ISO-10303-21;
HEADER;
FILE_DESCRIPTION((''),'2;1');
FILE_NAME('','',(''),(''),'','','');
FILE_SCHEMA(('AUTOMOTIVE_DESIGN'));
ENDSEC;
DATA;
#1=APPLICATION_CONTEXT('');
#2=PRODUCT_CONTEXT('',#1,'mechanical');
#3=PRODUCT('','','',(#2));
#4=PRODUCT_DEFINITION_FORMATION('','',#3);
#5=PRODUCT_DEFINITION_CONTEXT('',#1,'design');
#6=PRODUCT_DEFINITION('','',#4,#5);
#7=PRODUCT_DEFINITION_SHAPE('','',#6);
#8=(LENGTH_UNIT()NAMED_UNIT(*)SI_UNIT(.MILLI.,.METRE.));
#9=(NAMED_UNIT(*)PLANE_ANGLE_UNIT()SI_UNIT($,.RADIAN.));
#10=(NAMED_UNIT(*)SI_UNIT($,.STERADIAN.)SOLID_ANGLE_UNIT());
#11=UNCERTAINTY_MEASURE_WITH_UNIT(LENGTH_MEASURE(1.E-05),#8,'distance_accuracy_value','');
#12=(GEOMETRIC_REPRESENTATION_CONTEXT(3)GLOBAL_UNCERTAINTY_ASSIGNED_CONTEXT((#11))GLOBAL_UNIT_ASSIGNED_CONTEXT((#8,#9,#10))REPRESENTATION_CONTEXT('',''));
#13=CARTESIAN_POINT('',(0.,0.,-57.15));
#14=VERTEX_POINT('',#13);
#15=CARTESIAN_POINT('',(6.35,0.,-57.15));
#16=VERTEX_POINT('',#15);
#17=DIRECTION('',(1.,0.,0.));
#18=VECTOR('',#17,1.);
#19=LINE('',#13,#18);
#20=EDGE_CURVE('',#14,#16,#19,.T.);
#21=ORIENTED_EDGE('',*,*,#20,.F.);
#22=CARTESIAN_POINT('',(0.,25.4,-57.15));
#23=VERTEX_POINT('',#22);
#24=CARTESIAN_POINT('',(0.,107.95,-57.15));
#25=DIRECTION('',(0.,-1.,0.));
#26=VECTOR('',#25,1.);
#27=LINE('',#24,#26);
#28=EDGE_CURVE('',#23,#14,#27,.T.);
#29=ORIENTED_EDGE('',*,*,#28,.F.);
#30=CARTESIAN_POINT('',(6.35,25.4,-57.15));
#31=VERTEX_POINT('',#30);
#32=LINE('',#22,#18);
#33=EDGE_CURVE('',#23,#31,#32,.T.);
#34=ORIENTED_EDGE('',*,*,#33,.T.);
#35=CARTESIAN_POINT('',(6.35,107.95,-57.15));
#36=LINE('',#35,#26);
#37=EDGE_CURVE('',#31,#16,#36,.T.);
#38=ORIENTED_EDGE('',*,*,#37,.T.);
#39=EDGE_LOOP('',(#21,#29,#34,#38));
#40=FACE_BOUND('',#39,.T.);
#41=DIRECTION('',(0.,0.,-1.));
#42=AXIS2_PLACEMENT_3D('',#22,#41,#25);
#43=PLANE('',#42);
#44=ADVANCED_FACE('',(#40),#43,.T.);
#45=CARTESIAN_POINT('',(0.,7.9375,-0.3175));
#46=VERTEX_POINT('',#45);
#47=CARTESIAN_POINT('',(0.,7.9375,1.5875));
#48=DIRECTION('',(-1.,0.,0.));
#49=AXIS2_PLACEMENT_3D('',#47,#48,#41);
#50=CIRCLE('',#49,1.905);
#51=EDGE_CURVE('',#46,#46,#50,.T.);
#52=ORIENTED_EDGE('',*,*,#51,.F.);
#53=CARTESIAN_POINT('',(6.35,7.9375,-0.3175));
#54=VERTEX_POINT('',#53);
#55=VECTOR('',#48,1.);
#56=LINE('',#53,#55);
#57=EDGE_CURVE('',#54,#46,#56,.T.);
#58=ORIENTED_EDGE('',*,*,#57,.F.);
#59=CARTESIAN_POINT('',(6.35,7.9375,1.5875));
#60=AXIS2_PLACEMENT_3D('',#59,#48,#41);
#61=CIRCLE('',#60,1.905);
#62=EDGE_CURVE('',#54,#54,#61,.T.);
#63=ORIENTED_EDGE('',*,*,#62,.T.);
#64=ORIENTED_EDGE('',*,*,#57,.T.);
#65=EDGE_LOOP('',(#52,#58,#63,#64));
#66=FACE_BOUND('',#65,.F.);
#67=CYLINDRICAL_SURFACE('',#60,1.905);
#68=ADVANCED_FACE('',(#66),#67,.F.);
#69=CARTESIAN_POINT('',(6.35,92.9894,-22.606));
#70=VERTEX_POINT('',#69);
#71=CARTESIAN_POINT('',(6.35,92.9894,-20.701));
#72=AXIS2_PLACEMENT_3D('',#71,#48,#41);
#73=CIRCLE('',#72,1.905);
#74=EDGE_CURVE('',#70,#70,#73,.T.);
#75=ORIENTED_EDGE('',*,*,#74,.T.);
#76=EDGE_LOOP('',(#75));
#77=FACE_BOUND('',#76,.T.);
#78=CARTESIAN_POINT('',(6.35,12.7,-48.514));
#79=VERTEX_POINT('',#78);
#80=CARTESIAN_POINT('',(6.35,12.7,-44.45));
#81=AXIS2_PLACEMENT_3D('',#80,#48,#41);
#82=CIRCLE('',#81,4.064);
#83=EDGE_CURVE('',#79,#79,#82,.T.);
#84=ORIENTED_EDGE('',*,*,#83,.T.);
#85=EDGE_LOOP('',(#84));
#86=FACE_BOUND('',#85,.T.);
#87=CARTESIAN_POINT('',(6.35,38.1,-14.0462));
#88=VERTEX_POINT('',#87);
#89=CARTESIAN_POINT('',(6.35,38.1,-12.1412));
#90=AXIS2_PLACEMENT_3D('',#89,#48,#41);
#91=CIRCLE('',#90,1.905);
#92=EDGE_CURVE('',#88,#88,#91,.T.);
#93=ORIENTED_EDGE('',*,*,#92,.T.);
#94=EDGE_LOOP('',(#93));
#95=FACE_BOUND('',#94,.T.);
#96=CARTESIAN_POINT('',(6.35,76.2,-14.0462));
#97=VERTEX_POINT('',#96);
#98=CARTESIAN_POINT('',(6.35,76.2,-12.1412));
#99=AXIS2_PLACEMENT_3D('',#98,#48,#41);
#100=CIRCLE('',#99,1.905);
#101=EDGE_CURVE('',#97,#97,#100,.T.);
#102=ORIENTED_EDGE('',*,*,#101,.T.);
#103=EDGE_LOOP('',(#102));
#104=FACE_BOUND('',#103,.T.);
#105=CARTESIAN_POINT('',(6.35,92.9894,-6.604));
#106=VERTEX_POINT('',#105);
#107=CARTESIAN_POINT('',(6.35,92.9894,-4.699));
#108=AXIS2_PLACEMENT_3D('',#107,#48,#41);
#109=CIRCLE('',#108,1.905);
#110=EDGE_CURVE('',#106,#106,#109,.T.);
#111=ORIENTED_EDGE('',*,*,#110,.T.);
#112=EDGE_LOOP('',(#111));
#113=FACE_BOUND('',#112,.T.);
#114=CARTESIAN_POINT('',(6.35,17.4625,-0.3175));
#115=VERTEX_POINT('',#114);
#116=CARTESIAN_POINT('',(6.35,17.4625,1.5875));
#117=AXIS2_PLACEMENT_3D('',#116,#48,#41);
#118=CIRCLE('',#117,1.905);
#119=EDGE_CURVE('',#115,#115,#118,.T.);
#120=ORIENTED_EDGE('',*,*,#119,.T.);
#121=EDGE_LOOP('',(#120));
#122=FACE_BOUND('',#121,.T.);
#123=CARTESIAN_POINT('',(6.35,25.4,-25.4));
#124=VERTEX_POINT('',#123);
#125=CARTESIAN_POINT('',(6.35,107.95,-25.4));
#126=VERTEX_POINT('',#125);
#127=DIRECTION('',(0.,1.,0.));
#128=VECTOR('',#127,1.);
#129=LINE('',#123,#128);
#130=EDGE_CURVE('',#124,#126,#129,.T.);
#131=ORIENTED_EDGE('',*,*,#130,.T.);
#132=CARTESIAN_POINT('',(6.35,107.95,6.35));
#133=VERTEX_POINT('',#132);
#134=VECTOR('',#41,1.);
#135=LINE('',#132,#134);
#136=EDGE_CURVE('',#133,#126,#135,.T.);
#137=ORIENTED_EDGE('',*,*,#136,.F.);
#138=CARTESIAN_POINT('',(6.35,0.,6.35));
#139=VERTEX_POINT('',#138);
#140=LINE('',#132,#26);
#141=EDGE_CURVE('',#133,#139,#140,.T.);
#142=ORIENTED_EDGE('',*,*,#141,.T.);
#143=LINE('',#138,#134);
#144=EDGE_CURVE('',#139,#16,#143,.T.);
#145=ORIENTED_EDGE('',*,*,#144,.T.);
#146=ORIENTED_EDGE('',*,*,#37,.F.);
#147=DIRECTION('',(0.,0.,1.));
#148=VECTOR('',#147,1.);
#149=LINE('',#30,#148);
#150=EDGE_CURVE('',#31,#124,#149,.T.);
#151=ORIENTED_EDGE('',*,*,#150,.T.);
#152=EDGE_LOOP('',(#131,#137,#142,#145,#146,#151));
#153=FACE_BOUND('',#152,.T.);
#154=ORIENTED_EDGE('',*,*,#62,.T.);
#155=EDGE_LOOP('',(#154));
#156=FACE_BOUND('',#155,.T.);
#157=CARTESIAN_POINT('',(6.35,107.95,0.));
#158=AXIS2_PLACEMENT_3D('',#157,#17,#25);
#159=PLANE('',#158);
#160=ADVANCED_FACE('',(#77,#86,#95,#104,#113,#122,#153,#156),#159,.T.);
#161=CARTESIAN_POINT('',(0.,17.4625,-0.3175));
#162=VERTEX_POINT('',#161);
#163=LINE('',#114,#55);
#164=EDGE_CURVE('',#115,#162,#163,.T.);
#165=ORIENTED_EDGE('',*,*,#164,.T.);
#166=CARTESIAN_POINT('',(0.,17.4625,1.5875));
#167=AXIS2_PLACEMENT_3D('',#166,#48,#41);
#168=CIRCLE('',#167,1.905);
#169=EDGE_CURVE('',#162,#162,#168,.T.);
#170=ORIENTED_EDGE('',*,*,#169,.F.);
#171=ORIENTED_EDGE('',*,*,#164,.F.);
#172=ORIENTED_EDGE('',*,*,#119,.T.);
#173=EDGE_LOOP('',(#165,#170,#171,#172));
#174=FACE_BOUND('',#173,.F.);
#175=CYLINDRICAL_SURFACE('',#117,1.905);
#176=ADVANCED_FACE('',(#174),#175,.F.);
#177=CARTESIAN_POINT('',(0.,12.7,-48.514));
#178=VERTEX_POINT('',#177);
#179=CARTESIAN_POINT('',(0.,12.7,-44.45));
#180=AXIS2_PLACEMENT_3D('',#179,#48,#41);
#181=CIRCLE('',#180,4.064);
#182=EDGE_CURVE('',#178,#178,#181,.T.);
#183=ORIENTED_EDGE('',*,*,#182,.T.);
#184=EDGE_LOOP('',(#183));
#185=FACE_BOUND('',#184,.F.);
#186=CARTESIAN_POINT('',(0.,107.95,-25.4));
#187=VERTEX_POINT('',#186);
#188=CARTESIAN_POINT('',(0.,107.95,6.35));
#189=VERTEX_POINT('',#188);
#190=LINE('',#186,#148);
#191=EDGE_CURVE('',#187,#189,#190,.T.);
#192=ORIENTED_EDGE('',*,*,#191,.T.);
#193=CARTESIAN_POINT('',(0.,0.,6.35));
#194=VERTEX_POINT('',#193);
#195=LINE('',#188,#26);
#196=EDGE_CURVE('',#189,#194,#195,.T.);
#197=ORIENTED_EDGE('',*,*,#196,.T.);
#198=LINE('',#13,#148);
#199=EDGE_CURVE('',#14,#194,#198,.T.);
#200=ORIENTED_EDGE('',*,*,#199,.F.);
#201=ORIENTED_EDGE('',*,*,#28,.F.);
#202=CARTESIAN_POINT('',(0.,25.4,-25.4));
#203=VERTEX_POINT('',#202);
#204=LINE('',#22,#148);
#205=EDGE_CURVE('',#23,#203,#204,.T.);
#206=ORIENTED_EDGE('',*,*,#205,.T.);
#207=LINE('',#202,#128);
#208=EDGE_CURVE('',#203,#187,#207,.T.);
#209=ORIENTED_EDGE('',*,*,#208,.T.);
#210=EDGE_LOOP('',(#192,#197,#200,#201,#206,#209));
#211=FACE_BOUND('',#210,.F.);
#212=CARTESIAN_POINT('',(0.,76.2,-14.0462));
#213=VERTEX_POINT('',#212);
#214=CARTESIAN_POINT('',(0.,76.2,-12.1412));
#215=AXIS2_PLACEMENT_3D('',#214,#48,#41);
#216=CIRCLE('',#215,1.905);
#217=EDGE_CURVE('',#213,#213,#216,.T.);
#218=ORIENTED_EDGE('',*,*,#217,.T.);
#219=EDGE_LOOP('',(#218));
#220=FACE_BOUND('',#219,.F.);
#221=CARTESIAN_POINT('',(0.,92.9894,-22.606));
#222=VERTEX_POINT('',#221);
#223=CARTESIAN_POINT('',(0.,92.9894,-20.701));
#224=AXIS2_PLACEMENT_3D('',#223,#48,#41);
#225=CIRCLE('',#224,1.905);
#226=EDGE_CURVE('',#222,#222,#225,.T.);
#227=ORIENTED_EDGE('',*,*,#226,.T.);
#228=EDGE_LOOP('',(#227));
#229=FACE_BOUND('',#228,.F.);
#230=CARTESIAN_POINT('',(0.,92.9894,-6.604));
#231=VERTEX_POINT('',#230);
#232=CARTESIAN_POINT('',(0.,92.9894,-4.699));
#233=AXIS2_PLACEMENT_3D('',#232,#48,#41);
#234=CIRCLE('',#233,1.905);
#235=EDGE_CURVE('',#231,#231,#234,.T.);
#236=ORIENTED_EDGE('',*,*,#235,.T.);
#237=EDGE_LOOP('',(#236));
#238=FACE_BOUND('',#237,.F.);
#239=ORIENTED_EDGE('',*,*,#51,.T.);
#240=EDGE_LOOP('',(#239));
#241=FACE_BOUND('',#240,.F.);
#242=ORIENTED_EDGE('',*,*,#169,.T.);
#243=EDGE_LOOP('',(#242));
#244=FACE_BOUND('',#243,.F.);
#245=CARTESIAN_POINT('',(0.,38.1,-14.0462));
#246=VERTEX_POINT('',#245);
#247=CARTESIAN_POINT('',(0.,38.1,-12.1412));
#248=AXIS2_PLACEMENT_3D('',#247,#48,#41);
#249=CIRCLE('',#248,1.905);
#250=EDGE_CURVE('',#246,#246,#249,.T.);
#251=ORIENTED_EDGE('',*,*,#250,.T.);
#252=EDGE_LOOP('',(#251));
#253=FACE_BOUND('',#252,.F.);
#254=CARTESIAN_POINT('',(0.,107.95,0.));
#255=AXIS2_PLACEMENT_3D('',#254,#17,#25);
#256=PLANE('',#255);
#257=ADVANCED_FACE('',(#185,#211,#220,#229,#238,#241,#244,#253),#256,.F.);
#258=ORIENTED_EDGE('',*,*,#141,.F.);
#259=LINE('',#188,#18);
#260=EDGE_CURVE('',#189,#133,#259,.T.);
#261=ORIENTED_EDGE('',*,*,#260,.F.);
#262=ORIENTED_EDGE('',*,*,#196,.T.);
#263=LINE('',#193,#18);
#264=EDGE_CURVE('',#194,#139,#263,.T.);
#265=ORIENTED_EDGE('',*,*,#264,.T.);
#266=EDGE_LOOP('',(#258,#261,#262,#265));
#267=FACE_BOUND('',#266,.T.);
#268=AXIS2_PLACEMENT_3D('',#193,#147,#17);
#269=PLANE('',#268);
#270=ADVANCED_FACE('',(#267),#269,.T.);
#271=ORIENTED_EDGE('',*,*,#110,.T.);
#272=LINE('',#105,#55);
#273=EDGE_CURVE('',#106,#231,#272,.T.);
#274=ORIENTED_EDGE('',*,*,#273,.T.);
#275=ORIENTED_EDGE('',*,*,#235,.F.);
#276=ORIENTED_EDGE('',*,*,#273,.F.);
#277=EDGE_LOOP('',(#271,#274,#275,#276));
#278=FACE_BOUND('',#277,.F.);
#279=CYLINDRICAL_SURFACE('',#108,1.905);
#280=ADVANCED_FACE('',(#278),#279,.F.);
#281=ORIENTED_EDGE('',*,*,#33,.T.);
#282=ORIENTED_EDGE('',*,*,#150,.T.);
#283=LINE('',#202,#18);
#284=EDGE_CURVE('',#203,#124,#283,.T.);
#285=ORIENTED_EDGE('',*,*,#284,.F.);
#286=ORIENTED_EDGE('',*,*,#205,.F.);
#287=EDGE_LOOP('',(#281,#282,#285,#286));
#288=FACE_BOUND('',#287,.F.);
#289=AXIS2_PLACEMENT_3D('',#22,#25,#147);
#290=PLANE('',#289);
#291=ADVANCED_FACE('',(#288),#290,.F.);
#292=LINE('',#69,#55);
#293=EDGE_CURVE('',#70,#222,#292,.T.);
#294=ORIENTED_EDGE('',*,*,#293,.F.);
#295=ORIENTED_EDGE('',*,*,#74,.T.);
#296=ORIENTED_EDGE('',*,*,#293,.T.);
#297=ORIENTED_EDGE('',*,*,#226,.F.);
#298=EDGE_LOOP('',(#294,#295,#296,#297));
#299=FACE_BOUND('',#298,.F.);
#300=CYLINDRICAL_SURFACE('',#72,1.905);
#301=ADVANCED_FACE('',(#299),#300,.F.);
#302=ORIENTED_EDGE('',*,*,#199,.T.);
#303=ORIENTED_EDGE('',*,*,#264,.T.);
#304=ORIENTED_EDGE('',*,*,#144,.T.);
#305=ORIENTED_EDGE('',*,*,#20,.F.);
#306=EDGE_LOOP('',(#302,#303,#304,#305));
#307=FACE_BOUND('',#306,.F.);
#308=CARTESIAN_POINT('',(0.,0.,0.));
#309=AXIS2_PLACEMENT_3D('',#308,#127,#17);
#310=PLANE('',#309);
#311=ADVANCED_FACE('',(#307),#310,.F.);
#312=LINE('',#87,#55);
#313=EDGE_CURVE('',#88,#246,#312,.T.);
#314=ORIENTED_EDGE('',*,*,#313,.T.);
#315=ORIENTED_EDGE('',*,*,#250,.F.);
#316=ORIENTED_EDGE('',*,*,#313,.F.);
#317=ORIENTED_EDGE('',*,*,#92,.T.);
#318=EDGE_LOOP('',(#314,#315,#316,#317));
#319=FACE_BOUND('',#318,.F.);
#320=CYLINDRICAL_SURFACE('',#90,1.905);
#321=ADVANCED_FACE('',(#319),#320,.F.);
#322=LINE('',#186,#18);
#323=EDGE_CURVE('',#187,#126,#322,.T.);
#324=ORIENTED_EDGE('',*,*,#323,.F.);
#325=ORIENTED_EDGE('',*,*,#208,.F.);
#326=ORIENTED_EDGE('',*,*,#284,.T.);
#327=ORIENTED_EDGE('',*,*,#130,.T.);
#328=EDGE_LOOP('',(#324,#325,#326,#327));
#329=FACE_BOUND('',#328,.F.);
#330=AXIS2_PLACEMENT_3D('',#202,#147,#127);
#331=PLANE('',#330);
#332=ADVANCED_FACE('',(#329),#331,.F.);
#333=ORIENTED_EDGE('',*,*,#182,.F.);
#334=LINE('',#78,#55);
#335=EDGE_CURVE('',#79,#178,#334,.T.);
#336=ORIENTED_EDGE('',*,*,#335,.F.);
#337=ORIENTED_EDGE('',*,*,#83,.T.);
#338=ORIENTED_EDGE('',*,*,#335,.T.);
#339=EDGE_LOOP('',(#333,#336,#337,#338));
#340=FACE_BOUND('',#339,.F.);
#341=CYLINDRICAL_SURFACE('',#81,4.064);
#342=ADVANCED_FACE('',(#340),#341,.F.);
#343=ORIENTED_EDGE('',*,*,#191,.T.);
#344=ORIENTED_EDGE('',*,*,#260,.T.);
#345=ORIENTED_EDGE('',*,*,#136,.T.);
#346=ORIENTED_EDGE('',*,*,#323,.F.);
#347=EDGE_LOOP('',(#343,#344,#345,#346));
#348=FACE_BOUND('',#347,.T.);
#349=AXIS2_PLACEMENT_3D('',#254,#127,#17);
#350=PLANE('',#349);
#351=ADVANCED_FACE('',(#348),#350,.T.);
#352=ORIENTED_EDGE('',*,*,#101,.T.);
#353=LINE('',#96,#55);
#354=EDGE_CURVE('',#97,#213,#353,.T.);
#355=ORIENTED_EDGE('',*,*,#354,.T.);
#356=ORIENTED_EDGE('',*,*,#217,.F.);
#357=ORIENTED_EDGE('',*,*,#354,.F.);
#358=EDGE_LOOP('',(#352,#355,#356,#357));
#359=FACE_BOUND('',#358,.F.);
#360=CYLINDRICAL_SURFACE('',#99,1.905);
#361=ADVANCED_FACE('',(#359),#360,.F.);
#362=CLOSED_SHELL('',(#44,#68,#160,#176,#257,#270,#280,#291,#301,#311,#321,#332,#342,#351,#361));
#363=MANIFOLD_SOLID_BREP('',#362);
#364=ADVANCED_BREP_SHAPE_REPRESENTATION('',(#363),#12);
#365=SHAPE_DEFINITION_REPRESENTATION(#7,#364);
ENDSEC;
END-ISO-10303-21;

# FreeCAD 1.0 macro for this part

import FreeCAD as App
import Part
import Sketcher
Q = App.Units.Quantity


def add_polygon(sketch, points):
    """Adds a closed chain of lines whose ends are joined by coincident constraints."""
    first, n = sketch.GeometryCount, len(points)
    for a, b in zip(points, points[1:] + points[:1]):
        sketch.addGeometry(Part.LineSegment(App.Vector(*a, 0), App.Vector(*b, 0)), False)
    for i in range(n):
        sketch.addConstraint(Sketcher.Constraint("Coincident", first + i, 2, first + (i + 1) % n, 1))

doc = App.newDocument("Part")
body = doc.addObject("PartDesign::Body", "Body")

# Sketch on YZ plane
sketch1 = body.newObject("Sketcher::SketchObject", "Sketch")
sketch1.AttachmentSupport = (doc.getObject("YZ_Plane"), [""])
sketch1.MapMode = "FlatFace"
add_polygon(sketch1, [(108, 0), (0, 0), (0, -57), (25, -57), (25, -25), (108, -25)])  # lines 0-5
sketch1.addConstraint([
    Sketcher.Constraint("Horizontal", 0),
    Sketcher.Constraint("Vertical", 1),
    Sketcher.Constraint("Horizontal", 2),
    Sketcher.Constraint("Vertical", 3),
    Sketcher.Constraint("Horizontal", 4),
    Sketcher.Constraint("Vertical", 5),
    Sketcher.Constraint("Coincident", 0, 2, -1, 1),
    Sketcher.Constraint("Equal", 2, 5),
    Sketcher.Constraint("DistanceX", 0, 2, 0, 1, Q("4.25 in")),
    Sketcher.Constraint("DistanceX", 4, 1, 4, 2, Q("3.25 in")),
    Sketcher.Constraint("DistanceY", 1, 2, 1, 1, Q("2.25 in")),
])
pad1 = body.newObject("PartDesign::Pad", "Pad")
pad1.Profile = sketch1
pad1.Length = Q("0.25 in")

# Sketch on YZ plane
sketch2 = body.newObject("Sketcher::SketchObject", "Sketch001")
sketch2.AttachmentSupport = (doc.getObject("YZ_Plane"), [""])
sketch2.MapMode = "FlatFace"
sketch2.AttachmentOffset = App.Placement(App.Vector(0, 0, 0.25 * 25.4), App.Rotation())
sketch2.addGeometry([
    Part.Circle(App.Vector(93, -4.7, 0), App.Vector(0, 0, 1), 1.9),
    Part.Circle(App.Vector(93, -20.7, 0), App.Vector(0, 0, 1), 1.9),
], False)
sketch2.addConstraint([
    Sketcher.Constraint("Equal", 0, 1),
    Sketcher.Constraint("Vertical", 0, 3, 1, 3),
    Sketcher.Constraint("Diameter", 0, Q("0.15 in")),
    Sketcher.Constraint("DistanceY", 1, 3, 0, 3, Q("0.63 in")),
    Sketcher.Constraint("DistanceX", -1, 1, 0, 3, Q("3.661 in")),
    Sketcher.Constraint("DistanceY", 0, 3, -1, 1, Q("0.185 in")),
])
doc.recompute()
hole = body.newObject("PartDesign::Hole", "Hole")
hole.Profile = sketch2
hole.ThreadType = "None"
hole.Diameter = Q("0.15 in")
hole.DepthType = "ThroughAll"

# Sketch on YZ plane
sketch3 = body.newObject("Sketcher::SketchObject", "Sketch002")
sketch3.AttachmentSupport = (doc.getObject("YZ_Plane"), [""])
sketch3.MapMode = "FlatFace"
sketch3.AttachmentOffset = App.Placement(App.Vector(0, 0, 0.25 * 25.4), App.Rotation())
sketch3.addGeometry(Part.Circle(App.Vector(12.7, -44.5, 0), App.Vector(0, 0, 1), 4.1), False)
sketch3.addConstraint([
    Sketcher.Constraint("Diameter", 0, Q("0.32 in")),
    Sketcher.Constraint("DistanceX", -1, 1, 0, 3, Q("0.5 in")),
    Sketcher.Constraint("DistanceY", 0, 3, -1, 1, Q("1.75 in")),
])
doc.recompute()
hole2 = body.newObject("PartDesign::Hole", "Hole001")
hole2.Profile = sketch3
hole2.ThreadType = "None"
hole2.Diameter = Q("0.32 in")
hole2.DepthType = "ThroughAll"

# Sketch on YZ plane
sketch4 = body.newObject("Sketcher::SketchObject", "Sketch003")
sketch4.AttachmentSupport = (doc.getObject("YZ_Plane"), [""])
sketch4.MapMode = "FlatFace"
sketch4.AttachmentOffset = App.Placement(App.Vector(0, 0, 0.25 * 25.4), App.Rotation())
sketch4.addGeometry([
    Part.Circle(App.Vector(76.2, -12.1, 0), App.Vector(0, 0, 1), 1.9),
    Part.Circle(App.Vector(38.1, -12.1, 0), App.Vector(0, 0, 1), 1.9),
], False)
sketch4.addConstraint([
    Sketcher.Constraint("Equal", 0, 1),
    Sketcher.Constraint("Horizontal", 0, 3, 1, 3),
    Sketcher.Constraint("Diameter", 0, Q("0.15 in")),
    Sketcher.Constraint("DistanceX", -1, 1, 0, 3, Q("3 in")),
    Sketcher.Constraint("DistanceX", -1, 1, 1, 3, Q("1.5 in")),
    Sketcher.Constraint("DistanceY", 0, 3, -1, 1, Q("0.478 in")),
])
doc.recompute()
hole3 = body.newObject("PartDesign::Hole", "Hole002")
hole3.Profile = sketch4
hole3.ThreadType = "None"
hole3.Diameter = Q("0.15 in")
hole3.DepthType = "Dimension"
hole3.Depth = Q("0.432 in")
hole3.DrillPoint = "Angled"
hole3.DrillPointAngle = 118

# Sketch on XY plane
sketch5 = body.newObject("Sketcher::SketchObject", "Sketch004")
sketch5.AttachmentSupport = (doc.getObject("XY_Plane"), [""])
sketch5.MapMode = "FlatFace"
add_polygon(sketch5, [(6, 108), (0, 108), (0, 0), (6, 0)])  # lines 0-3
sketch5.addConstraint([
    Sketcher.Constraint("Horizontal", 0),
    Sketcher.Constraint("Vertical", 1),
    Sketcher.Constraint("Horizontal", 2),
    Sketcher.Constraint("Vertical", 3),
    Sketcher.Constraint("Coincident", 1, 2, -1, 1),
    Sketcher.Constraint("DistanceX", 0, 2, 0, 1, Q("0.25 in")),
    Sketcher.Constraint("DistanceY", 1, 2, 1, 1, Q("4.25 in")),
])
pad2 = body.newObject("PartDesign::Pad", "Pad001")
pad2.Profile = sketch5
pad2.Length = Q("0.25 in")

# Sketch on YZ plane
sketch6 = body.newObject("Sketcher::SketchObject", "Sketch005")
sketch6.AttachmentSupport = (doc.getObject("YZ_Plane"), [""])
sketch6.MapMode = "FlatFace"
sketch6.AttachmentOffset = App.Placement(App.Vector(0, 0, 0.25 * 25.4), App.Rotation())
sketch6.addGeometry([
    Part.Circle(App.Vector(17.5, 1.6, 0), App.Vector(0, 0, 1), 1.9),
    Part.Circle(App.Vector(7.9, 1.6, 0), App.Vector(0, 0, 1), 1.9),
], False)
sketch6.addConstraint([
    Sketcher.Constraint("Equal", 0, 1),
    Sketcher.Constraint("Horizontal", 0, 3, 1, 3),
    Sketcher.Constraint("Diameter", 0, Q("0.15 in")),
    Sketcher.Constraint("DistanceX", -1, 1, 0, 3, Q("0.6875 in")),
    Sketcher.Constraint("DistanceY", -1, 1, 0, 3, Q("0.0625 in")),
    Sketcher.Constraint("DistanceX", -1, 1, 1, 3, Q("0.3125 in")),
])
doc.recompute()
hole4 = body.newObject("PartDesign::Hole", "Hole003")
hole4.Profile = sketch6
hole4.ThreadType = "None"
hole4.Diameter = Q("0.15 in")
hole4.DepthType = "ThroughAll"

doc.recompute()
